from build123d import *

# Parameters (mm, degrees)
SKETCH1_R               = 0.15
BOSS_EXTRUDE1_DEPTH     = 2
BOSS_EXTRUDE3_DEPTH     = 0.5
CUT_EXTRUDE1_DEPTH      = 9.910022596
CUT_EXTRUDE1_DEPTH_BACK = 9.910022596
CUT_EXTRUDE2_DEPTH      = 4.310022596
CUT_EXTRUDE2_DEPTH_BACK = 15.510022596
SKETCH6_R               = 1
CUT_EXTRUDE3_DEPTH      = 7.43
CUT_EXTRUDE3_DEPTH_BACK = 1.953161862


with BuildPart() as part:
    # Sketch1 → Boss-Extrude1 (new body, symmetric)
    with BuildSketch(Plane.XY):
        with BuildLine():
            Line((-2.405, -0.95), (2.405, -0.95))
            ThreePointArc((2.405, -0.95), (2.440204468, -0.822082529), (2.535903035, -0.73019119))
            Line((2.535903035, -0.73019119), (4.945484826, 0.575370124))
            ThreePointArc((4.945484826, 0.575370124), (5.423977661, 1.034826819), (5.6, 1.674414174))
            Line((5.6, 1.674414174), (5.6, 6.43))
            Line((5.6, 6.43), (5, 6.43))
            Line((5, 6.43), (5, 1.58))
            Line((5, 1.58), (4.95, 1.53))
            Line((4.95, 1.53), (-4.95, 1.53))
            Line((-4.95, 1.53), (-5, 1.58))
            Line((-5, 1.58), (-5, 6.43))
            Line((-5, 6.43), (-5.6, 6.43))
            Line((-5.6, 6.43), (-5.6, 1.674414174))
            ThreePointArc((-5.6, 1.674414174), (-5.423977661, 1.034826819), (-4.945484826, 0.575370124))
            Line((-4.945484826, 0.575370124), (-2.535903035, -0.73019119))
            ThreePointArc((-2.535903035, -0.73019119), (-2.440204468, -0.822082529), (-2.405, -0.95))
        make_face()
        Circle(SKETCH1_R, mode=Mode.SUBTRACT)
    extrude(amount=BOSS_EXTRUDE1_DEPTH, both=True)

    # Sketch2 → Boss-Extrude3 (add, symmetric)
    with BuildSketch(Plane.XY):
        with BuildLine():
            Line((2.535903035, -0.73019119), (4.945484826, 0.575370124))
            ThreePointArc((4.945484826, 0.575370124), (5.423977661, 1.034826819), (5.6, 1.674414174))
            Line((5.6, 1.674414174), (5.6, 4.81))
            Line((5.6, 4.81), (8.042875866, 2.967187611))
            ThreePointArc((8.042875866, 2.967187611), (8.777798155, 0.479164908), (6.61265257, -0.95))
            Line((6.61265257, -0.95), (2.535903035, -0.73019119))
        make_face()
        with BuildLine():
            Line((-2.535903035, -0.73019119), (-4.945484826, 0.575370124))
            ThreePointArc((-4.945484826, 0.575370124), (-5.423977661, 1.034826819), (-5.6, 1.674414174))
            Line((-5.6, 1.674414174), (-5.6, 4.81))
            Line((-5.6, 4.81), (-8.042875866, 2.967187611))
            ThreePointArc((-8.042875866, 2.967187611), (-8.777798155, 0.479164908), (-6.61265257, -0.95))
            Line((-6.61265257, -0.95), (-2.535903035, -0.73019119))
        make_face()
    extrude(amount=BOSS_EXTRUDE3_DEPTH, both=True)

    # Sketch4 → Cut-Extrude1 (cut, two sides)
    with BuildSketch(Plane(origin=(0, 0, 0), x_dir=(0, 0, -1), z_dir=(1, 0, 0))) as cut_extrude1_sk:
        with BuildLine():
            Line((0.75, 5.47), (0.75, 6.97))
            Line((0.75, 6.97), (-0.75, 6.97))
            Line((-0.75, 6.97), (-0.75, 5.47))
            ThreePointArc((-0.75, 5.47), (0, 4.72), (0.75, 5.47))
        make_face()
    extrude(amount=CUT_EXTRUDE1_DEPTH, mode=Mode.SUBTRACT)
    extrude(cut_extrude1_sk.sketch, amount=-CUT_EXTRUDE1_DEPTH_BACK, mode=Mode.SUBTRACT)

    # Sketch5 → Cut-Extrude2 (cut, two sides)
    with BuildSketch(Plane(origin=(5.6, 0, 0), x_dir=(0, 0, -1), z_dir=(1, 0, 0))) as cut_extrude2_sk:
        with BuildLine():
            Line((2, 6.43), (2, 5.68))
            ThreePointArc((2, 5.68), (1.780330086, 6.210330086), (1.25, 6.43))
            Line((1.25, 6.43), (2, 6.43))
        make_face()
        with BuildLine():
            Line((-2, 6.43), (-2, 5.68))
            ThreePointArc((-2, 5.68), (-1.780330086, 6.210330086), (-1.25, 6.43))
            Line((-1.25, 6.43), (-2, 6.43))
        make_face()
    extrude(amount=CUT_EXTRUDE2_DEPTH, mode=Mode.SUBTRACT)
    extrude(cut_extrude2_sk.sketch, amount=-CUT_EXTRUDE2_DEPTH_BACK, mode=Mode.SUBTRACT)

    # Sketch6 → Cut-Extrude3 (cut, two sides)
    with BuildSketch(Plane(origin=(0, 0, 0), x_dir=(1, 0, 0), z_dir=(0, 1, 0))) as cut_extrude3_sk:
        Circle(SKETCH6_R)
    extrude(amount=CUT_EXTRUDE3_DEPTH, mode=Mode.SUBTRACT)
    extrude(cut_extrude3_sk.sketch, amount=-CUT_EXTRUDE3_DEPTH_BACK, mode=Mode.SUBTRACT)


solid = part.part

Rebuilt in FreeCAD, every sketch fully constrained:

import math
import FreeCAD as App
import Part
import Sketcher
Q = App.Units.Quantity

doc = App.newDocument("Part")
body = doc.addObject("PartDesign::Body", "Body")

sketch1 = body.newObject("Sketcher::SketchObject", "Sketch")
sketch1.AttachmentSupport = (doc.getObject("XY_Plane"), [""])
sketch1.MapMode = "FlatFace"
sketch1.addGeometry([
    Part.LineSegment(App.Vector(-2.405, -0.95, 0), App.Vector(2.405, -0.95, 0)),
    Part.ArcOfCircle(Part.Circle(App.Vector(2.655, -0.95, 0), App.Vector(0, 0, 1), 0.25), math.radians(118.449752), math.radians(180)),
    Part.LineSegment(App.Vector(2.535903, -0.730191, 0), App.Vector(4.945485, 0.57537, 0)),
    Part.ArcOfCircle(Part.Circle(App.Vector(4.35, 1.674414, 0), App.Vector(0, 0, 1), 1.25), math.radians(-61.550248), math.radians(0)),
    Part.LineSegment(App.Vector(5.6, 1.674414, 0), App.Vector(5.6, 6.43, 0)),
    Part.LineSegment(App.Vector(5.6, 6.43, 0), App.Vector(5, 6.43, 0)),
    Part.LineSegment(App.Vector(5, 6.43, 0), App.Vector(5, 1.58, 0)),
    Part.LineSegment(App.Vector(5, 1.58, 0), App.Vector(4.95, 1.53, 0)),
    Part.LineSegment(App.Vector(4.95, 1.53, 0), App.Vector(-4.95, 1.53, 0)),
    Part.LineSegment(App.Vector(-4.95, 1.53, 0), App.Vector(-5, 1.58, 0)),
    Part.LineSegment(App.Vector(-5, 1.58, 0), App.Vector(-5, 6.43, 0)),
    Part.LineSegment(App.Vector(-5, 6.43, 0), App.Vector(-5.6, 6.43, 0)),
    Part.LineSegment(App.Vector(-5.6, 6.43, 0), App.Vector(-5.6, 1.674414, 0)),
    Part.ArcOfCircle(Part.Circle(App.Vector(-4.35, 1.674414, 0), App.Vector(0, 0, 1), 1.25), math.radians(180), math.radians(241.550248)),
    Part.LineSegment(App.Vector(-4.945485, 0.57537, 0), App.Vector(-2.535903, -0.730191, 0)),
    Part.ArcOfCircle(Part.Circle(App.Vector(-2.655, -0.95, 0), App.Vector(0, 0, 1), 0.25), math.radians(0), math.radians(61.550248)),
    Part.Circle(App.Vector(0, 0, 0), App.Vector(0, 0, 1), 0.15),
], False)
sketch1.addConstraint([
    Sketcher.Constraint("Coincident", 0, 2, 1, 2),
    Sketcher.Constraint("Tangent", 1, 1, 2, 1),
    Sketcher.Constraint("Tangent", 2, 2, 3, 1),
    Sketcher.Constraint("Tangent", 3, 2, 4, 1),
    Sketcher.Constraint("Coincident", 4, 2, 5, 1),
    Sketcher.Constraint("Coincident", 5, 2, 6, 1),
    Sketcher.Constraint("Coincident", 6, 2, 7, 1),
    Sketcher.Constraint("Coincident", 7, 2, 8, 1),
    Sketcher.Constraint("Coincident", 8, 2, 9, 1),
    Sketcher.Constraint("Coincident", 9, 2, 10, 1),
    Sketcher.Constraint("Coincident", 10, 2, 11, 1),
    Sketcher.Constraint("Coincident", 11, 2, 12, 1),
    Sketcher.Constraint("Tangent", 12, 2, 13, 1),
    Sketcher.Constraint("Tangent", 13, 2, 14, 1),
    Sketcher.Constraint("Tangent", 14, 2, 15, 2),
    Sketcher.Constraint("Coincident", 15, 1, 0, 1),
    Sketcher.Constraint("Horizontal", 0),
    Sketcher.Constraint("Vertical", 4),
    Sketcher.Constraint("Horizontal", 5),
    Sketcher.Constraint("Vertical", 6),
    Sketcher.Constraint("Horizontal", 8),
    Sketcher.Constraint("Vertical", 10),
    Sketcher.Constraint("Horizontal", 11),
    Sketcher.Constraint("Vertical", 12),
    Sketcher.Constraint("Coincident", 16, 3, -1, 1),
    Sketcher.Constraint("Equal", 3, 13),
    Sketcher.Constraint("Equal", 1, 15),
    Sketcher.Constraint("Symmetric", 3, 3, 13, 3, -2),
    Sketcher.Constraint("Symmetric", 1, 3, 15, 3, -2),
    Sketcher.Constraint("Symmetric", 6, 2, 9, 2, -2),
    Sketcher.Constraint("Perpendicular", 7, 9),
    Sketcher.Constraint("Horizontal", 15, 3, 0, 2),
    Sketcher.Constraint("Horizontal", 5, 2, 10, 2),
    Sketcher.Constraint("Equal", 7, 9),
    Sketcher.Constraint("Diameter", 16, Q("0.3 mm")),
    Sketcher.Constraint("Radius", 1, Q("0.25 mm")),
    Sketcher.Constraint("Radius", 3, Q("1.25 mm")),
    Sketcher.Constraint("DistanceX", 5, 2, 5, 1, Q("0.6 mm")),
    Sketcher.Constraint("DistanceX", 8, 2, 8, 1, Q("9.9 mm")),
    Sketcher.Constraint("DistanceX", -1, 1, 5, 2, Q("5 mm")),
    Sketcher.Constraint("DistanceX", 0, 1, 0, 2, Q("4.81 mm")),
    Sketcher.Constraint("DistanceY", 6, 2, 6, 1, Q("4.85 mm")),
    Sketcher.Constraint("DistanceY", 1, 3, -1, 1, Q("0.95 mm")),
    Sketcher.Constraint("DistanceY", -1, 1, 4, 2, Q("6.43 mm")),
    Sketcher.Constraint("DistanceY", 4, 1, 4, 2, Q("4.755586 mm")),
])
pad1 = body.newObject("PartDesign::Pad", "Pad")
pad1.Profile = sketch1
pad1.Length = 4
pad1.Midplane = True

sketch2 = body.newObject("Sketcher::SketchObject", "Sketch001")
sketch2.AttachmentSupport = (doc.getObject("XY_Plane"), [""])
sketch2.MapMode = "FlatFace"
sketch2.addGeometry([
    Part.LineSegment(App.Vector(4.945485, 0.57537, 0), App.Vector(2.535903, -0.730191, 0)),
    Part.LineSegment(App.Vector(2.535903, -0.730191, 0), App.Vector(6.612653, -0.95, 0)),
    Part.ArcOfCircle(Part.Circle(App.Vector(6.730023, 1.226838, 0), App.Vector(0, 0, 1), 2.18), math.radians(-93.086266), math.radians(52.970491)),
    Part.LineSegment(App.Vector(8.042876, 2.967188, 0), App.Vector(5.6, 4.81, 0)),
    Part.LineSegment(App.Vector(5.6, 4.81, 0), App.Vector(5.6, 1.674414, 0)),
    Part.ArcOfCircle(Part.Circle(App.Vector(4.35, 1.674414, 0), App.Vector(0, 0, 1), 1.25), math.radians(-61.550248), math.radians(0)),
    Part.LineSegment(App.Vector(-2.535903, -0.730191, 0), App.Vector(-4.945485, 0.57537, 0)),
    Part.ArcOfCircle(Part.Circle(App.Vector(-4.35, 1.674414, 0), App.Vector(0, 0, 1), 1.25), math.radians(180), math.radians(241.550248)),
    Part.LineSegment(App.Vector(-5.6, 1.674414, 0), App.Vector(-5.6, 4.81, 0)),
    Part.LineSegment(App.Vector(-5.6, 4.81, 0), App.Vector(-8.042876, 2.967188, 0)),
    Part.ArcOfCircle(Part.Circle(App.Vector(-6.730023, 1.226838, 0), App.Vector(0, 0, 1), 2.18), math.radians(127.029509), math.radians(273.086266)),
    Part.LineSegment(App.Vector(-6.612653, -0.95, 0), App.Vector(-2.535903, -0.730191, 0)),
], False)
sketch2.addConstraint([
    Sketcher.Constraint("Coincident", 0, 2, 1, 1),
    Sketcher.Constraint("Tangent", 1, 2, 2, 1),
    Sketcher.Constraint("Tangent", 2, 2, 3, 1),
    Sketcher.Constraint("Coincident", 3, 2, 4, 1),
    Sketcher.Constraint("Tangent", 4, 2, 5, 2),
    Sketcher.Constraint("Tangent", 5, 1, 0, 1),
    Sketcher.Constraint("Tangent", 6, 2, 7, 2),
    Sketcher.Constraint("Tangent", 7, 1, 8, 1),
    Sketcher.Constraint("Coincident", 8, 2, 9, 1),
    Sketcher.Constraint("Tangent", 9, 2, 10, 1),
    Sketcher.Constraint("Tangent", 10, 2, 11, 1),
    Sketcher.Constraint("Coincident", 11, 2, 6, 1),
    Sketcher.Constraint("Vertical", 4),
    Sketcher.Constraint("Vertical", 8),
    Sketcher.Constraint("Equal", 5, 7),
    Sketcher.Constraint("Equal", 2, 10),
    Sketcher.Constraint("Symmetric", 5, 3, 7, 3, -2),
    Sketcher.Constraint("Symmetric", 2, 3, 10, 3, -2),
    Sketcher.Constraint("Symmetric", 0, 2, 11, 2, -2),
    Sketcher.Constraint("Horizontal", 3, 2, 8, 2),
    Sketcher.Constraint("Radius", 2, Q("2.18 mm")),
    Sketcher.Constraint("Radius", 5, Q("1.25 mm")),
    Sketcher.Constraint("DistanceX", -1, 1, 3, 2, Q("5.6 mm")),
    Sketcher.Constraint("Distance", 3, Q("3.06 mm")),
    Sketcher.Constraint("DistanceY", 1, 2, -1, 1, Q("0.95 mm")),
    Sketcher.Constraint("DistanceY", -1, 1, 3, 2, Q("4.81 mm")),
    Sketcher.Constraint("Distance", 1, Q("4.082671 mm")),
    Sketcher.Constraint("DistanceY", 4, 2, 4, 1, Q("3.135586 mm")),
    Sketcher.Constraint("DistanceY", -1, 1, 2, 3, Q("1.226838 mm")),
])
pad2 = body.newObject("PartDesign::Pad", "Pad001")
pad2.Profile = sketch2
pad2.Length = 1
pad2.Midplane = True

sketch3 = body.newObject("Sketcher::SketchObject", "Sketch002")
sketch3.AttachmentSupport = (doc.getObject("YZ_Plane"), [""])
sketch3.MapMode = "FlatFace"
sketch3.addGeometry([
    Part.LineSegment(App.Vector(5.47, -0.75, 0), App.Vector(6.97, -0.75, 0)),
    Part.LineSegment(App.Vector(6.97, -0.75, 0), App.Vector(6.97, 0.75, 0)),
    Part.LineSegment(App.Vector(6.97, 0.75, 0), App.Vector(5.47, 0.75, 0)),
    Part.ArcOfCircle(Part.Circle(App.Vector(5.47, 0, 0), App.Vector(0, 0, 1), 0.75), math.radians(90), math.radians(270)),
], False)
sketch3.addConstraint([
    Sketcher.Constraint("Coincident", 0, 2, 1, 1),
    Sketcher.Constraint("Coincident", 1, 2, 2, 1),
    Sketcher.Constraint("Tangent", 2, 2, 3, 1),
    Sketcher.Constraint("Tangent", 3, 2, 0, 1),
    Sketcher.Constraint("Horizontal", 0),
    Sketcher.Constraint("Vertical", 1),
    Sketcher.Constraint("Horizontal", 2),
    Sketcher.Constraint("PointOnObject", 3, 3, -1),
    Sketcher.Constraint("Equal", 2, 1),
    Sketcher.Constraint("Radius", 3, Q("0.75 mm")),
    Sketcher.Constraint("DistanceX", -1, 1, 3, 3, Q("5.47 mm")),
])
pocket1 = body.newObject("PartDesign::Pocket", "Pocket")
pocket1.Profile = sketch3
pocket1.Type = "ThroughAll"
pocket1.Midplane = True

sketch4 = body.newObject("Sketcher::SketchObject", "Sketch003")
sketch4.AttachmentSupport = (doc.getObject("YZ_Plane"), [""])
sketch4.MapMode = "FlatFace"
sketch4.AttachmentOffset = App.Placement(App.Vector(0, 0, 5.6), App.Rotation())
sketch4.addGeometry([
    Part.LineSegment(App.Vector(5.68, -2, 0), App.Vector(6.43, -2, 0)),
    Part.LineSegment(App.Vector(6.43, -2, 0), App.Vector(6.43, -1.25, 0)),
    Part.ArcOfCircle(Part.Circle(App.Vector(5.68, -1.25, 0), App.Vector(0, 0, 1), 0.75), math.radians(-90), math.radians(0)),
    Part.LineSegment(App.Vector(6.43, 2, 0), App.Vector(5.68, 2, 0)),
    Part.ArcOfCircle(Part.Circle(App.Vector(5.68, 1.25, 0), App.Vector(0, 0, 1), 0.75), math.radians(0), math.radians(90)),
    Part.LineSegment(App.Vector(6.43, 1.25, 0), App.Vector(6.43, 2, 0)),
], False)
sketch4.addConstraint([
    Sketcher.Constraint("Coincident", 0, 2, 1, 1),
    Sketcher.Constraint("Tangent", 1, 2, 2, 2),
    Sketcher.Constraint("Tangent", 2, 1, 0, 1),
    Sketcher.Constraint("Tangent", 3, 2, 4, 2),
    Sketcher.Constraint("Tangent", 4, 1, 5, 1),
    Sketcher.Constraint("Coincident", 5, 2, 3, 1),
    Sketcher.Constraint("Horizontal", 0),
    Sketcher.Constraint("Vertical", 1),
    Sketcher.Constraint("Horizontal", 3),
    Sketcher.Constraint("Vertical", 5),
    Sketcher.Constraint("Equal", 2, 4),
    Sketcher.Constraint("Symmetric", 2, 3, 4, 3, -1),
    Sketcher.Constraint("Radius", 2, Q("0.75 mm")),
    Sketcher.Constraint("DistanceY", 0, 2, -1, 1, Q("2 mm")),
    Sketcher.Constraint("DistanceX", -1, 1, 2, 3, Q("5.68 mm")),
])
pocket2 = body.newObject("PartDesign::Pocket", "Pocket001")
pocket2.Profile = sketch4
pocket2.Type = "ThroughAll"
pocket2.Midplane = True

sketch5 = body.newObject("Sketcher::SketchObject", "Sketch004")
sketch5.AttachmentSupport = (doc.getObject("XZ_Plane"), [""])
sketch5.MapMode = "FlatFace"
sketch5.addGeometry(Part.Circle(App.Vector(0, 0, 0), App.Vector(0, 0, 1), 1), False)
sketch5.addConstraint([
    Sketcher.Constraint("Coincident", 0, 3, -1, 1),
    Sketcher.Constraint("Diameter", 0, Q("2 mm")),
])
pocket3 = body.newObject("PartDesign::Pocket", "Pocket002")
pocket3.Profile = sketch5
pocket3.Type = "ThroughAll"
pocket3.Midplane = True

doc.recompute()
